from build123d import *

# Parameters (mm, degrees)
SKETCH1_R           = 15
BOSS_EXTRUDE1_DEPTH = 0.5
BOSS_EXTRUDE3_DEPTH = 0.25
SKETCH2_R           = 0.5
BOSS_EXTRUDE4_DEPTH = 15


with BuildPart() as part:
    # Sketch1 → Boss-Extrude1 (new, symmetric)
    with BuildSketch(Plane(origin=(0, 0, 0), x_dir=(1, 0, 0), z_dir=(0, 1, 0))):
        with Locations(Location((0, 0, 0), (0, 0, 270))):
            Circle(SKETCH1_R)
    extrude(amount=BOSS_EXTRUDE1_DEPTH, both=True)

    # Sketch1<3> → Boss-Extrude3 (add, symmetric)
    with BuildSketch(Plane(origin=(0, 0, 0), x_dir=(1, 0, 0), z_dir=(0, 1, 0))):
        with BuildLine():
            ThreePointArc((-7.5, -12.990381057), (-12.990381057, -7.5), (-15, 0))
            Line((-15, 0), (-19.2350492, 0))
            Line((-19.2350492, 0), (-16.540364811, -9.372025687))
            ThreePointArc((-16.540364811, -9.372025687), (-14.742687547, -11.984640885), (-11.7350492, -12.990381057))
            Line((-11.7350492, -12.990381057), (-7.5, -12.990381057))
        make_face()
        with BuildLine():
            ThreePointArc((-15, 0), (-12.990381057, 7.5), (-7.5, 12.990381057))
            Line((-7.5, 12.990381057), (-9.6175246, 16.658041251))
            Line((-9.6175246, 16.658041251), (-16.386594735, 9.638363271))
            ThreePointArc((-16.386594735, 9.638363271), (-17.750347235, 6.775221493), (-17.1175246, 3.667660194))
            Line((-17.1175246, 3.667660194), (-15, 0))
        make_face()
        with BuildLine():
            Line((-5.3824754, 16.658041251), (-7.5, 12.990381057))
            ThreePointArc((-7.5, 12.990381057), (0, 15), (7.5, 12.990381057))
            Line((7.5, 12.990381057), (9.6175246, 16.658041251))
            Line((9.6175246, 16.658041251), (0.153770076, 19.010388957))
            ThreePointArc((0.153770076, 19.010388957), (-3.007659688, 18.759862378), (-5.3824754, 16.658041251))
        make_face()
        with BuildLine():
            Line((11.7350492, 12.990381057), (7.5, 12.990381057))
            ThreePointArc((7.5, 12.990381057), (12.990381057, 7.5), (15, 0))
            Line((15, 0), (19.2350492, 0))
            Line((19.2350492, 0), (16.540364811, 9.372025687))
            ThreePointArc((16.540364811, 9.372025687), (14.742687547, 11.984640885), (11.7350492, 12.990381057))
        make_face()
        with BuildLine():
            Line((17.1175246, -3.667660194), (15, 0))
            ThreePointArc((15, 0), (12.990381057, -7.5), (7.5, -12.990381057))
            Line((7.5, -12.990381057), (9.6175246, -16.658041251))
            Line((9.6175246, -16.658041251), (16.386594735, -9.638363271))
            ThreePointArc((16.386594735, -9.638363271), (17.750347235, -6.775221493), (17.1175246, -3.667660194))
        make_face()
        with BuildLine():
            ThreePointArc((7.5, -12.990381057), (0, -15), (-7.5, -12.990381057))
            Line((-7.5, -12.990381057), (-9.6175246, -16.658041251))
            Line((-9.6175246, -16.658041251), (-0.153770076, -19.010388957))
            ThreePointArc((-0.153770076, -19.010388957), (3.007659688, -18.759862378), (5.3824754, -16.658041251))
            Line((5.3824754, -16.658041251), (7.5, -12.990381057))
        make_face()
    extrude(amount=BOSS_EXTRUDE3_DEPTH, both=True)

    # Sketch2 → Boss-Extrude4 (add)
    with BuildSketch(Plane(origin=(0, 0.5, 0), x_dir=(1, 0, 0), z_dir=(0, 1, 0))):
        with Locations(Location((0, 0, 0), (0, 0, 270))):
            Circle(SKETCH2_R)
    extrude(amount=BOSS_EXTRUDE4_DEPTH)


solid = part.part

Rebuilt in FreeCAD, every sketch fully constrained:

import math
import FreeCAD as App
import Part
import Sketcher
Q = App.Units.Quantity

doc = App.newDocument("Part")
params = doc.addObject("Spreadsheet::Sheet", "Params")
for row, (alias, value) in enumerate([
    ("sketch1_diameter", "30 mm"),
    ("pad1_length", "1 mm"),
    ("sketch2_radius", "15 mm"),
    ("sketch2_radius2", "5 mm"),
    ("pad2_length", "0.5 mm"),
    ("sketch3_diameter", "1 mm"),
    ("pad3_length", "15 mm"),
], start=1):
    params.set(f"A{row}", alias)
    params.set(f"B{row}", "=" + value)
    params.setAlias(f"B{row}", alias)

body = doc.addObject("PartDesign::Body", "Body")

# Sketch on XZ plane
sketch1 = body.newObject("Sketcher::SketchObject", "Sketch")
sketch1.AttachmentSupport = (doc.getObject("XZ_Plane"), [""])
sketch1.MapMode = "FlatFace"
sketch1.addGeometry(Part.Circle(App.Vector(0, 0, 0), App.Vector(0, 0, 1), 15), False)
sketch1.addConstraint([
    Sketcher.Constraint("Coincident", 0, 3, -1, 1),
    Sketcher.Constraint("Diameter", 0, Q("30 mm")),
])
sketch1.setExpression("Constraints[1]", "Params.sketch1_diameter")
pad1 = body.newObject("PartDesign::Pad", "Pad")
pad1.Profile = sketch1
pad1.setExpression("Length", "Params.pad1_length")
pad1.Midplane = True

# Sketch on XZ plane
sketch2 = body.newObject("Sketcher::SketchObject", "Sketch001")
sketch2.AttachmentSupport = (doc.getObject("XZ_Plane"), [""])
sketch2.MapMode = "FlatFace"
sketch2.addGeometry([
    Part.ArcOfCircle(Part.Circle(App.Vector(0, 0, 0), App.Vector(0, 0, 1), 15), math.radians(120), math.radians(180)),  # 0
    Part.LineSegment(App.Vector(-15, 0, 0), App.Vector(-19.2, 0, 0)),  # 1
    Part.LineSegment(App.Vector(-19.2, 0, 0), App.Vector(-16.5, 9.4, 0)),  # 2
    Part.ArcOfCircle(Part.Circle(App.Vector(-11.7, 8, 0), App.Vector(0, 0, 1), 5), math.radians(90), math.radians(164)),  # 3
    Part.LineSegment(App.Vector(-11.7, 13, 0), App.Vector(-7.5, 13, 0)),  # 4
    Part.ArcOfCircle(Part.Circle(App.Vector(0, 0, 0), App.Vector(0, 0, 1), 15), math.radians(180), math.radians(240)),  # 5
    Part.LineSegment(App.Vector(-7.5, -13, 0), App.Vector(-9.6, -16.7, 0)),  # 6
    Part.LineSegment(App.Vector(-9.6, -16.7, 0), App.Vector(-16.4, -9.6, 0)),  # 7
    Part.ArcOfCircle(Part.Circle(App.Vector(-12.8, -6.2, 0), App.Vector(0, 0, 1), 5), math.radians(150), math.radians(224)),  # 8
    Part.LineSegment(App.Vector(-17.1, -3.7, 0), App.Vector(-15, 0, 0)),  # 9
    Part.LineSegment(App.Vector(-5.4, -16.7, 0), App.Vector(-7.5, -13, 0)),  # 10
    Part.ArcOfCircle(Part.Circle(App.Vector(0, 0, 0), App.Vector(0, 0, 1), 15), math.radians(-120), math.radians(-60)),  # 11
    Part.LineSegment(App.Vector(7.5, -13, 0), App.Vector(9.6, -16.7, 0)),  # 12
    Part.LineSegment(App.Vector(9.6, -16.7, 0), App.Vector(0.2, -19, 0)),  # 13
    Part.ArcOfCircle(Part.Circle(App.Vector(-1.1, -14.2, 0), App.Vector(0, 0, 1), 5), math.radians(-150), math.radians(-76)),  # 14
    Part.LineSegment(App.Vector(11.7, -13, 0), App.Vector(7.5, -13, 0)),  # 15
    Part.ArcOfCircle(Part.Circle(App.Vector(0, 0, 0), App.Vector(0, 0, 1), 15), math.radians(-60), math.radians(0)),  # 16
    Part.LineSegment(App.Vector(15, 0, 0), App.Vector(19.2, 0, 0)),  # 17
    Part.LineSegment(App.Vector(19.2, 0, 0), App.Vector(16.5, -9.4, 0)),  # 18
    Part.ArcOfCircle(Part.Circle(App.Vector(11.7, -8, 0), App.Vector(0, 0, 1), 5), math.radians(-90), math.radians(-16)),  # 19
    Part.LineSegment(App.Vector(17.1, 3.7, 0), App.Vector(15, 0, 0)),  # 20
    Part.ArcOfCircle(Part.Circle(App.Vector(0, 0, 0), App.Vector(0, 0, 1), 15), math.radians(0), math.radians(60)),  # 21
    Part.LineSegment(App.Vector(7.5, 13, 0), App.Vector(9.6, 16.7, 0)),  # 22
    Part.LineSegment(App.Vector(9.6, 16.7, 0), App.Vector(16.4, 9.6, 0)),  # 23
    Part.ArcOfCircle(Part.Circle(App.Vector(12.8, 6.2, 0), App.Vector(0, 0, 1), 5), math.radians(-30), math.radians(44)),  # 24
    Part.ArcOfCircle(Part.Circle(App.Vector(0, 0, 0), App.Vector(0, 0, 1), 15), math.radians(60), math.radians(120)),  # 25
    Part.LineSegment(App.Vector(-7.5, 13, 0), App.Vector(-9.6, 16.7, 0)),  # 26
    Part.LineSegment(App.Vector(-9.6, 16.7, 0), App.Vector(-0.2, 19, 0)),  # 27
    Part.ArcOfCircle(Part.Circle(App.Vector(1.1, 14.2, 0), App.Vector(0, 0, 1), 5), math.radians(30), math.radians(104)),  # 28
    Part.LineSegment(App.Vector(5.4, 16.7, 0), App.Vector(7.5, 13, 0)),  # 29
], False)
sketch2.addConstraint([
    Sketcher.Constraint("Coincident", 0, 2, 1, 1),
    Sketcher.Constraint("Coincident", 1, 2, 2, 1),
    Sketcher.Constraint("Tangent", 2, 2, 3, 2),
    Sketcher.Constraint("Tangent", 3, 1, 4, 1),
    Sketcher.Constraint("Coincident", 4, 2, 0, 1),
    Sketcher.Constraint("Coincident", 5, 2, 6, 1),
    Sketcher.Constraint("Coincident", 6, 2, 7, 1),
    Sketcher.Constraint("Tangent", 7, 2, 8, 2),
    Sketcher.Constraint("Tangent", 8, 1, 9, 1),
    Sketcher.Constraint("Coincident", 9, 2, 5, 1),
    Sketcher.Constraint("Coincident", 10, 2, 11, 1),
    Sketcher.Constraint("Coincident", 11, 2, 12, 1),
    Sketcher.Constraint("Coincident", 12, 2, 13, 1),
    Sketcher.Constraint("Tangent", 13, 2, 14, 2),
    Sketcher.Constraint("Tangent", 14, 1, 10, 1),
    Sketcher.Constraint("Coincident", 15, 2, 16, 1),
    Sketcher.Constraint("Coincident", 16, 2, 17, 1),
    Sketcher.Constraint("Coincident", 17, 2, 18, 1),
    Sketcher.Constraint("Tangent", 18, 2, 19, 2),
    Sketcher.Constraint("Tangent", 19, 1, 15, 1),
    Sketcher.Constraint("Coincident", 20, 2, 21, 1),
    Sketcher.Constraint("Coincident", 21, 2, 22, 1),
    Sketcher.Constraint("Coincident", 22, 2, 23, 1),
    Sketcher.Constraint("Tangent", 23, 2, 24, 2),
    Sketcher.Constraint("Tangent", 24, 1, 20, 1),
    Sketcher.Constraint("Coincident", 25, 2, 26, 1),
    Sketcher.Constraint("Coincident", 26, 2, 27, 1),
    Sketcher.Constraint("Tangent", 27, 2, 28, 2),
    Sketcher.Constraint("Tangent", 28, 1, 29, 1),
    Sketcher.Constraint("Coincident", 29, 2, 25, 1),
    Sketcher.Constraint("Horizontal", 1),
    Sketcher.Constraint("Horizontal", 4),
    Sketcher.Constraint("Horizontal", 15),
    Sketcher.Constraint("Horizontal", 17),
    Sketcher.Constraint("Coincident", 0, 3, -1, 1),
    Sketcher.Constraint("Coincident", 5, 3, -1, 1),
    Sketcher.Constraint("Coincident", 11, 3, -1, 1),
    Sketcher.Constraint("Coincident", 16, 3, -1, 1),
    Sketcher.Constraint("Coincident", 21, 3, -1, 1),
    Sketcher.Constraint("Coincident", 25, 3, -1, 1),
    Sketcher.Constraint("Coincident", 9, 2, 0, 2),
    Sketcher.Constraint("Coincident", 10, 2, 5, 2),
    Sketcher.Constraint("Coincident", 15, 2, 11, 2),
    Sketcher.Constraint("Coincident", 20, 2, 16, 2),
    Sketcher.Constraint("Coincident", 25, 2, 4, 2),
    Sketcher.Constraint("Equal", 3, 8),
    Sketcher.Constraint("Equal", 8, 14),
    Sketcher.Constraint("Equal", 14, 19),
    Sketcher.Constraint("Equal", 19, 24),
    Sketcher.Constraint("Equal", 24, 28),
    Sketcher.Constraint("Symmetric", 3, 3, 19, 3, -1, 1),
    Sketcher.Constraint("Symmetric", 8, 3, 24, 3, -1, 1),
    Sketcher.Constraint("Symmetric", 14, 3, 28, 3, -1, 1),
    Sketcher.Constraint("Symmetric", 1, 2, 17, 2, -1, 1),
    Sketcher.Constraint("Symmetric", 6, 2, 22, 2, -1, 1),
    Sketcher.Constraint("Symmetric", 12, 2, 26, 2, -1, 1),
    Sketcher.Constraint("Symmetric", 6, 2, 12, 2, -2),
    Sketcher.Constraint("PointOnObject", 0, 2, -1),
    Sketcher.Constraint("Parallel", 6, 9),
    Sketcher.Constraint("Parallel", 10, 12),
    Sketcher.Constraint("Parallel", 20, 22),
    Sketcher.Constraint("Parallel", 26, 29),
    Sketcher.Constraint("Horizontal", 10, 2, 11, 2),
    Sketcher.Constraint("Horizontal", 12, 2, 14, 1),
    Sketcher.Constraint("Equal", 1, 4),
    Sketcher.Constraint("Equal", 2, 7),
    Sketcher.Constraint("Equal", 6, 9),
    Sketcher.Constraint("Equal", 7, 13),
    Sketcher.Constraint("Radius", 0, Q("15 mm")),
    Sketcher.Constraint("Radius", 3, Q("5 mm")),
    Sketcher.Constraint("DistanceX", 1, 2, 1, 1, Q("4.235049 mm")),
    Sketcher.Constraint("DistanceX", 3, 3, 14, 3, Q("10.682701 mm")),
])
sketch2.setExpression("Constraints[68]", "Params.sketch2_radius")
sketch2.setExpression("Constraints[69]", "Params.sketch2_radius2")
pad2 = body.newObject("PartDesign::Pad", "Pad001")
pad2.Profile = sketch2
pad2.setExpression("Length", "Params.pad2_length")
pad2.Midplane = True

# Sketch on XZ plane
sketch3 = body.newObject("Sketcher::SketchObject", "Sketch002")
sketch3.AttachmentSupport = (doc.getObject("XZ_Plane"), [""])
sketch3.MapMode = "FlatFace"
sketch3.AttachmentOffset = App.Placement(App.Vector(0, 0, -0.5), App.Rotation())
sketch3.addGeometry(Part.Circle(App.Vector(0, 0, 0), App.Vector(0, 0, 1), 0.5), False)
sketch3.addConstraint([
    Sketcher.Constraint("Coincident", 0, 3, -1, 1),
    Sketcher.Constraint("Diameter", 0, Q("1 mm")),
])
sketch3.setExpression("Constraints[1]", "Params.sketch3_diameter")
pad3 = body.newObject("PartDesign::Pad", "Pad002")
pad3.Profile = sketch3
pad3.setExpression("Length", "Params.pad3_length")
pad3.Reversed = True

doc.recompute()
